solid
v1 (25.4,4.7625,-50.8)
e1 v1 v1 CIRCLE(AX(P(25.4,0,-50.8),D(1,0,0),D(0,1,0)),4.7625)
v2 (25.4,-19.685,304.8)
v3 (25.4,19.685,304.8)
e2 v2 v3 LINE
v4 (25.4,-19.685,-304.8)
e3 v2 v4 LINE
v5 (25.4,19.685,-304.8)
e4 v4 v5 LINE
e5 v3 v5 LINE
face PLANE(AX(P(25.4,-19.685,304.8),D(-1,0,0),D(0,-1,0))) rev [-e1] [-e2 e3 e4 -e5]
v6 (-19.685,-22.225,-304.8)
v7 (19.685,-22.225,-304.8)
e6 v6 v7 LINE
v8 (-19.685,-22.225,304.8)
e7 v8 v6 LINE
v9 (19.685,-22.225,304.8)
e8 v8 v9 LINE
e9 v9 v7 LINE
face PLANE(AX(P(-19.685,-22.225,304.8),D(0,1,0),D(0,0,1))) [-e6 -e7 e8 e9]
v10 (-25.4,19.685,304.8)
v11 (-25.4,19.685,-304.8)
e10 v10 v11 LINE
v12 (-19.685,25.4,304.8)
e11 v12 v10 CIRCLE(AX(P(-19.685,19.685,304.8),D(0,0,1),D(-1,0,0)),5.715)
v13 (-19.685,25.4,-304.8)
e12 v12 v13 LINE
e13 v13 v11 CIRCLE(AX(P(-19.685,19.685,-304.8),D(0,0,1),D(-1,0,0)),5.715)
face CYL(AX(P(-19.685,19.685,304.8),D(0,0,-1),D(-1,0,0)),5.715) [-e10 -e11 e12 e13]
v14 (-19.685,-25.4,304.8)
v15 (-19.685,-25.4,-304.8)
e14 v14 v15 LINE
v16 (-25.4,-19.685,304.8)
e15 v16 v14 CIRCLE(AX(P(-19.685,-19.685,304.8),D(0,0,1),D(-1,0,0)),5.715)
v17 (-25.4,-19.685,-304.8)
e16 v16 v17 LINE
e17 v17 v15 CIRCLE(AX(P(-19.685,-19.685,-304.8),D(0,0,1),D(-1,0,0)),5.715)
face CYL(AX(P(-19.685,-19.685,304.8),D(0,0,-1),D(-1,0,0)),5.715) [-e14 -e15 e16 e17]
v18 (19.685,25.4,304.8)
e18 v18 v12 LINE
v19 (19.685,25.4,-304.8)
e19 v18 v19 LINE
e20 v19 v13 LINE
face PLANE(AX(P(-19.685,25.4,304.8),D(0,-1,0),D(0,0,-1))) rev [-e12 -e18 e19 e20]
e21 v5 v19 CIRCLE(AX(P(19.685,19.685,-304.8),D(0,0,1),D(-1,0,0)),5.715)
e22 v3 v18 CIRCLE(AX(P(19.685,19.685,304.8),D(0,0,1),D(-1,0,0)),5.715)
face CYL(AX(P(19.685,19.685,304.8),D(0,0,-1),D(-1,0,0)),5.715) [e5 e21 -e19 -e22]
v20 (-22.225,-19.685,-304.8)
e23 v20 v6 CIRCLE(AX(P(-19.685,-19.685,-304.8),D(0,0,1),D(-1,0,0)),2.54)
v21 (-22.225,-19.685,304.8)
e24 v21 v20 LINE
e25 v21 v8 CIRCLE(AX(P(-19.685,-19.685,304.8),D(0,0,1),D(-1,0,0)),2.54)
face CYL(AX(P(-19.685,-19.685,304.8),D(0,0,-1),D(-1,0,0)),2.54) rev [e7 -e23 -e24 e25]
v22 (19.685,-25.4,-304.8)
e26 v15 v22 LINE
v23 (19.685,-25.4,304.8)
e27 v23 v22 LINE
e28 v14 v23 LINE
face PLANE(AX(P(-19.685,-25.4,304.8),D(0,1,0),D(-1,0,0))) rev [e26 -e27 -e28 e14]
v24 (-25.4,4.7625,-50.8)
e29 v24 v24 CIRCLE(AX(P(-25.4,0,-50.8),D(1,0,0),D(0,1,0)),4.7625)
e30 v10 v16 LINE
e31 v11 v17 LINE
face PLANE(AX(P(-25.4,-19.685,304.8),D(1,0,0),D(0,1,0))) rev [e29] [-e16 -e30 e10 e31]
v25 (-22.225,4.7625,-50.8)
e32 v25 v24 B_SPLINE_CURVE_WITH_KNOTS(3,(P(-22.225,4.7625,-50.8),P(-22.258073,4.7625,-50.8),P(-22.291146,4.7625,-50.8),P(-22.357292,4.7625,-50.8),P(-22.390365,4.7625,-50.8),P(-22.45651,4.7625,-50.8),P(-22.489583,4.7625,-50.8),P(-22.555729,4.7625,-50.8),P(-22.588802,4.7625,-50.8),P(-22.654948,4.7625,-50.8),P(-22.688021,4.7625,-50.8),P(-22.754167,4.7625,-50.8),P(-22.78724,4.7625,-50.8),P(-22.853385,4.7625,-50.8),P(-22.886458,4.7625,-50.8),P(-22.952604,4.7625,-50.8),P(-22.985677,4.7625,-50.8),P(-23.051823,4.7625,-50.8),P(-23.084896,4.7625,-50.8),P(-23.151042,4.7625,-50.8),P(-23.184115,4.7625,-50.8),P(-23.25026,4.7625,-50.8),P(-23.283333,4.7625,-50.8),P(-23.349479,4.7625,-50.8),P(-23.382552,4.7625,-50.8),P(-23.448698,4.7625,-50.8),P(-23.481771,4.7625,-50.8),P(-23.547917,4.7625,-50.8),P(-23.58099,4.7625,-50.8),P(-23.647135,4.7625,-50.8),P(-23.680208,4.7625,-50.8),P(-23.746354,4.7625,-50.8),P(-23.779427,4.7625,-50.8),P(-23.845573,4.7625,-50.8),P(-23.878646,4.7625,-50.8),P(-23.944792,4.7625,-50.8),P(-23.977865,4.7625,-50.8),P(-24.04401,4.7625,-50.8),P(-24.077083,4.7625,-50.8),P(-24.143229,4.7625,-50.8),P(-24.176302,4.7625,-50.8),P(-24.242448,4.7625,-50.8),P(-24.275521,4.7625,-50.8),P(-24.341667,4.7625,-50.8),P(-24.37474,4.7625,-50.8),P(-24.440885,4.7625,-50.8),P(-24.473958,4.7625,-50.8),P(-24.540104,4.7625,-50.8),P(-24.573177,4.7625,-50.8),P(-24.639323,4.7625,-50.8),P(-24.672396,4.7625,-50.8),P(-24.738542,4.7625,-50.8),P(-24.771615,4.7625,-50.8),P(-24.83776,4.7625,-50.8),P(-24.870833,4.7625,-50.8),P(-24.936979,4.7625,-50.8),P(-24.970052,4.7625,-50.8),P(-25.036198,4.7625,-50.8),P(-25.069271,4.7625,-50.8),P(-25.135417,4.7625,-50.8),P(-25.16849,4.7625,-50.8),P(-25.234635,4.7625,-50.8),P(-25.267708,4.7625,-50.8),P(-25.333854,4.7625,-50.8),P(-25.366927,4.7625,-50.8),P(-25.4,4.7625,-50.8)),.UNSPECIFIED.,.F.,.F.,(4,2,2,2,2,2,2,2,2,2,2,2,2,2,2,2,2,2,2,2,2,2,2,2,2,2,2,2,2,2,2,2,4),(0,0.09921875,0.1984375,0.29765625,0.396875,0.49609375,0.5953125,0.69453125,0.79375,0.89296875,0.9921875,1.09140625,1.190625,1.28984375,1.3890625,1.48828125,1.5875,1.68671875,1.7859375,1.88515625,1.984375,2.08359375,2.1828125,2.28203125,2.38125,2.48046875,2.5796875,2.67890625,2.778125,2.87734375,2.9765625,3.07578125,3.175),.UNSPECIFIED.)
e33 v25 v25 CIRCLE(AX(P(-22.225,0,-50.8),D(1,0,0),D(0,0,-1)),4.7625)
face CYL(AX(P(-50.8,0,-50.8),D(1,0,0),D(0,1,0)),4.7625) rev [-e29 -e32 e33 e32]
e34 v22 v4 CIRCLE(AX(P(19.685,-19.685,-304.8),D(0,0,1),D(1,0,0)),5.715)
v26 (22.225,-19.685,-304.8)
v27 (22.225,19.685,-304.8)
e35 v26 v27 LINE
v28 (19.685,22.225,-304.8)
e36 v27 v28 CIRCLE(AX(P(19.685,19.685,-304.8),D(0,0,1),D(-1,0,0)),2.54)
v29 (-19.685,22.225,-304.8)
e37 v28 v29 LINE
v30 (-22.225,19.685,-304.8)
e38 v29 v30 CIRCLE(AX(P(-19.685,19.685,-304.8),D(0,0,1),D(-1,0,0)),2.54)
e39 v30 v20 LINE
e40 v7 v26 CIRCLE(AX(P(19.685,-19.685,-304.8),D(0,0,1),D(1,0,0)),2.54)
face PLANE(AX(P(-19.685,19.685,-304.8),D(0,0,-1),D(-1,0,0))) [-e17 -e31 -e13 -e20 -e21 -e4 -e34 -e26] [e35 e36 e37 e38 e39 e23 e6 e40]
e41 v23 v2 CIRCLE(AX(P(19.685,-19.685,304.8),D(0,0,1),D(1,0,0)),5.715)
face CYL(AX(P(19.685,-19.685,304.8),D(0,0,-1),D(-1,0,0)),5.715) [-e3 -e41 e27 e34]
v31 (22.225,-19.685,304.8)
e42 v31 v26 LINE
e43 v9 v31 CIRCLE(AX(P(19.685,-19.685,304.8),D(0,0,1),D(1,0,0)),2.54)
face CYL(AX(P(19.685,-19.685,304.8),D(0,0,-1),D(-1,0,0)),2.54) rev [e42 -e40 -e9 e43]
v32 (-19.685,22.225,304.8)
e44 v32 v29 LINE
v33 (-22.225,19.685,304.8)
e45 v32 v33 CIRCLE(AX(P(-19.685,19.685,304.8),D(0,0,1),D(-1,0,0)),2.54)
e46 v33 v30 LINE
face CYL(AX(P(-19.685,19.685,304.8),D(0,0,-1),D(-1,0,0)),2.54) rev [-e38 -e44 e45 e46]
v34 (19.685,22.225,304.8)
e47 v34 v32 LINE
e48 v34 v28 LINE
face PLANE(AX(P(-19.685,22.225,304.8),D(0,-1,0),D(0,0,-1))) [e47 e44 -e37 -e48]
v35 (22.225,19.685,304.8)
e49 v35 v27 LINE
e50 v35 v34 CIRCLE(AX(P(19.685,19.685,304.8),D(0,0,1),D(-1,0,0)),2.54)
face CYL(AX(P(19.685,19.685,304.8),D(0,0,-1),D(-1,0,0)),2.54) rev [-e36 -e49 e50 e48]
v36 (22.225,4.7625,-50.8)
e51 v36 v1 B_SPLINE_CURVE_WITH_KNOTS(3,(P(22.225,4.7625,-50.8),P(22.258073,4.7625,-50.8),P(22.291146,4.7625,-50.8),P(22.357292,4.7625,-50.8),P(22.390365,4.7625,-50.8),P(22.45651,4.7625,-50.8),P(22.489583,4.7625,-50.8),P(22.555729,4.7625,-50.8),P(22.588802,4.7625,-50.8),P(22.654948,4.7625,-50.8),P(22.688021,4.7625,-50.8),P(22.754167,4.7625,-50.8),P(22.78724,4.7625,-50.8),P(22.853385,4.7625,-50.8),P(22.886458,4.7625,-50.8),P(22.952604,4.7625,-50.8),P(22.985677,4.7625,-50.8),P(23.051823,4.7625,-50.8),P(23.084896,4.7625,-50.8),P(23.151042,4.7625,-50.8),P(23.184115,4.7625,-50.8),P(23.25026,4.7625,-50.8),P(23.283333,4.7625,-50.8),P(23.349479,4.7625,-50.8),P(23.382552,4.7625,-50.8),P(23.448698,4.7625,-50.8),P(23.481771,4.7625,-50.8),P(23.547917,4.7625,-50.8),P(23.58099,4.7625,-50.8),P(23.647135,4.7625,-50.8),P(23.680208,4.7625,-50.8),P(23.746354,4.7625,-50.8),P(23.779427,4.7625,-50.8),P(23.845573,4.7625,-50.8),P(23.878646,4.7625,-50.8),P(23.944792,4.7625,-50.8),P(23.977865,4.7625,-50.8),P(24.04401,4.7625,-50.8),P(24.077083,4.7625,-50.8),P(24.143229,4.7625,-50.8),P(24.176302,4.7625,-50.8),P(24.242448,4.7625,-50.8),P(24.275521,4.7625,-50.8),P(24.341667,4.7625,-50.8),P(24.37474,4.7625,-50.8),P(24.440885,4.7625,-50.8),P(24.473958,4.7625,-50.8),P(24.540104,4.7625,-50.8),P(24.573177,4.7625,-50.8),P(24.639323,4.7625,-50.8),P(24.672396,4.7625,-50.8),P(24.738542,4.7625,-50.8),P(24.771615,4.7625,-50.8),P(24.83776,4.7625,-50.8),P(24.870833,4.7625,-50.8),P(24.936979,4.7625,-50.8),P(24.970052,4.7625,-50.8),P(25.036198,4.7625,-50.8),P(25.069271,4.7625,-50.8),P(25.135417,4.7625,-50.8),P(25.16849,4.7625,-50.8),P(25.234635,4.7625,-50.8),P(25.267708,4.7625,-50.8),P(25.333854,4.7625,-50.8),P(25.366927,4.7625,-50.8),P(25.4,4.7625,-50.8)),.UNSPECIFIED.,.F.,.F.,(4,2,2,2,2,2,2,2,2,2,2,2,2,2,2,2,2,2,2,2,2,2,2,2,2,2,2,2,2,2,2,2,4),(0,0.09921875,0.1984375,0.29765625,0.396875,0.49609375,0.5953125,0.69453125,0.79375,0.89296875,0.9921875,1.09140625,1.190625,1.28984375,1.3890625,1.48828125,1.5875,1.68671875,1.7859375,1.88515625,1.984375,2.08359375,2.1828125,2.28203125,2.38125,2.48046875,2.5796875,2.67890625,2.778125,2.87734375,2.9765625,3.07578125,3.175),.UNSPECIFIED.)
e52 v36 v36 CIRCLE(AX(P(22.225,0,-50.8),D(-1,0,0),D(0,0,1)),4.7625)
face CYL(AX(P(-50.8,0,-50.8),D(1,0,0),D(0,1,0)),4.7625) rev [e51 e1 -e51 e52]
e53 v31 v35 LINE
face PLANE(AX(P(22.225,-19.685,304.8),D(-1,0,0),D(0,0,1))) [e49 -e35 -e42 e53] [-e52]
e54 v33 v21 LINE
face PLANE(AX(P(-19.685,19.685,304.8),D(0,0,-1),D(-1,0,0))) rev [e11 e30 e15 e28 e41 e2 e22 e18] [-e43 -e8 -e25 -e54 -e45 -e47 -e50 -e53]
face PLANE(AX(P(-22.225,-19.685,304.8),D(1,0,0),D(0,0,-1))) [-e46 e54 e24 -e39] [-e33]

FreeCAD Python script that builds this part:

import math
import FreeCAD as App
import Part
import Sketcher
from FreeCAD import Vector
Q = App.Units.Quantity

doc = App.newDocument("Part")
body = doc.addObject("PartDesign::Body", "Body")

sketch1 = body.newObject("Sketcher::SketchObject", "Sketch")
sketch1.AttachmentSupport = (doc.getObject("XY_Plane"), [""])
sketch1.MapMode = "FlatFace"
sketch1.addGeometry([
    Part.LineSegment(Vector(19.7, 25.4, 0), Vector(-19.7, 25.4, 0)),
    Part.ArcOfCircle(Part.Circle(Vector(-19.7, 19.7, 0), Vector(0, 0, 1), 5.7), math.radians(90), math.radians(180)),
    Part.LineSegment(Vector(-25.4, 19.7, 0), Vector(-25.4, -19.7, 0)),
    Part.ArcOfCircle(Part.Circle(Vector(-19.7, -19.7, 0), Vector(0, 0, 1), 5.7), math.radians(-180), math.radians(-90)),
    Part.LineSegment(Vector(-19.7, -25.4, 0), Vector(19.7, -25.4, 0)),
    Part.ArcOfCircle(Part.Circle(Vector(19.7, -19.7, 0), Vector(0, 0, 1), 5.7), math.radians(-90), math.radians(0)),
    Part.LineSegment(Vector(25.4, -19.7, 0), Vector(25.4, 19.7, 0)),
    Part.ArcOfCircle(Part.Circle(Vector(19.7, 19.7, 0), Vector(0, 0, 1), 5.7), math.radians(0), math.radians(90)),
    Part.ArcOfCircle(Part.Circle(Vector(-19.7, -19.7, 0), Vector(0, 0, 1), 2.5), math.radians(-180), math.radians(-90)),
    Part.LineSegment(Vector(-22.2, -19.7, 0), Vector(-22.2, 19.7, 0)),
    Part.ArcOfCircle(Part.Circle(Vector(-19.7, 19.7, 0), Vector(0, 0, 1), 2.5), math.radians(90), math.radians(180)),
    Part.LineSegment(Vector(-19.7, 22.2, 0), Vector(19.7, 22.2, 0)),
    Part.ArcOfCircle(Part.Circle(Vector(19.7, 19.7, 0), Vector(0, 0, 1), 2.5), math.radians(0), math.radians(90)),
    Part.LineSegment(Vector(22.2, 19.7, 0), Vector(22.2, -19.7, 0)),
    Part.ArcOfCircle(Part.Circle(Vector(19.7, -19.7, 0), Vector(0, 0, 1), 2.5), math.radians(-90), math.radians(0)),
    Part.LineSegment(Vector(19.7, -22.2, 0), Vector(-19.7, -22.2, 0)),
], False)
sketch1.addConstraint([
    Sketcher.Constraint("Tangent", 0, 2, 1, 1),
    Sketcher.Constraint("Tangent", 1, 2, 2, 1),
    Sketcher.Constraint("Tangent", 2, 2, 3, 1),
    Sketcher.Constraint("Tangent", 3, 2, 4, 1),
    Sketcher.Constraint("Tangent", 4, 2, 5, 1),
    Sketcher.Constraint("Tangent", 5, 2, 6, 1),
    Sketcher.Constraint("Tangent", 6, 2, 7, 1),
    Sketcher.Constraint("Tangent", 7, 2, 0, 1),
    Sketcher.Constraint("Tangent", 8, 1, 9, 1),
    Sketcher.Constraint("Tangent", 9, 2, 10, 2),
    Sketcher.Constraint("Tangent", 10, 1, 11, 1),
    Sketcher.Constraint("Tangent", 11, 2, 12, 2),
    Sketcher.Constraint("Tangent", 12, 1, 13, 1),
    Sketcher.Constraint("Tangent", 13, 2, 14, 2),
    Sketcher.Constraint("Tangent", 14, 1, 15, 1),
    Sketcher.Constraint("Tangent", 15, 2, 8, 2),
    Sketcher.Constraint("Horizontal", 0),
    Sketcher.Constraint("Vertical", 2),
    Sketcher.Constraint("Horizontal", 4),
    Sketcher.Constraint("Vertical", 6),
    Sketcher.Constraint("Vertical", 9),
    Sketcher.Constraint("Horizontal", 11),
    Sketcher.Constraint("Vertical", 13),
    Sketcher.Constraint("Horizontal", 15),
    Sketcher.Constraint("Coincident", 8, 3, 3, 3),
    Sketcher.Constraint("Coincident", 10, 3, 1, 3),
    Sketcher.Constraint("Coincident", 12, 3, 7, 3),
    Sketcher.Constraint("Equal", 1, 3),
    Sketcher.Constraint("Equal", 3, 5),
    Sketcher.Constraint("Equal", 5, 7),
    Sketcher.Constraint("Equal", 12, 14),
    Sketcher.Constraint("Symmetric", 1, 3, 5, 3, -1, 1),
    Sketcher.Constraint("Equal", 15, 2),
    Sketcher.Constraint("Radius", 8, Q("0.1 in")),
    Sketcher.Constraint("DistanceY", -1, 1, 0, 2, Q("1 in")),
    Sketcher.Constraint("Radius", 1, Q("0.225 in")),
])
pad1 = body.newObject("PartDesign::Pad", "Pad")
pad1.Profile = sketch1
pad1.Length = Q("24 in")
pad1.Midplane = True

sketch2 = body.newObject("Sketcher::SketchObject", "Sketch001")
sketch2.AttachmentSupport = (doc.getObject("YZ_Plane"), [""])
sketch2.MapMode = "FlatFace"
sketch2.AttachmentOffset = App.Placement(Vector(0, 0, 1 * 25.4), App.Rotation())
sketch2.addGeometry(Part.Circle(Vector(0, -50.8, 0), Vector(0, 0, 1), 4.8), False)
sketch2.addConstraint([
    Sketcher.Constraint("PointOnObject", 0, 3, -2),
    Sketcher.Constraint("Diameter", 0, Q("0.375 in")),
    Sketcher.Constraint("DistanceY", 0, 3, -1, 1, Q("2 in")),
])
pocket1 = body.newObject("PartDesign::Pocket", "Pocket")
pocket1.Profile = sketch2
pocket1.Length = Q("3 in")

doc.recompute()
